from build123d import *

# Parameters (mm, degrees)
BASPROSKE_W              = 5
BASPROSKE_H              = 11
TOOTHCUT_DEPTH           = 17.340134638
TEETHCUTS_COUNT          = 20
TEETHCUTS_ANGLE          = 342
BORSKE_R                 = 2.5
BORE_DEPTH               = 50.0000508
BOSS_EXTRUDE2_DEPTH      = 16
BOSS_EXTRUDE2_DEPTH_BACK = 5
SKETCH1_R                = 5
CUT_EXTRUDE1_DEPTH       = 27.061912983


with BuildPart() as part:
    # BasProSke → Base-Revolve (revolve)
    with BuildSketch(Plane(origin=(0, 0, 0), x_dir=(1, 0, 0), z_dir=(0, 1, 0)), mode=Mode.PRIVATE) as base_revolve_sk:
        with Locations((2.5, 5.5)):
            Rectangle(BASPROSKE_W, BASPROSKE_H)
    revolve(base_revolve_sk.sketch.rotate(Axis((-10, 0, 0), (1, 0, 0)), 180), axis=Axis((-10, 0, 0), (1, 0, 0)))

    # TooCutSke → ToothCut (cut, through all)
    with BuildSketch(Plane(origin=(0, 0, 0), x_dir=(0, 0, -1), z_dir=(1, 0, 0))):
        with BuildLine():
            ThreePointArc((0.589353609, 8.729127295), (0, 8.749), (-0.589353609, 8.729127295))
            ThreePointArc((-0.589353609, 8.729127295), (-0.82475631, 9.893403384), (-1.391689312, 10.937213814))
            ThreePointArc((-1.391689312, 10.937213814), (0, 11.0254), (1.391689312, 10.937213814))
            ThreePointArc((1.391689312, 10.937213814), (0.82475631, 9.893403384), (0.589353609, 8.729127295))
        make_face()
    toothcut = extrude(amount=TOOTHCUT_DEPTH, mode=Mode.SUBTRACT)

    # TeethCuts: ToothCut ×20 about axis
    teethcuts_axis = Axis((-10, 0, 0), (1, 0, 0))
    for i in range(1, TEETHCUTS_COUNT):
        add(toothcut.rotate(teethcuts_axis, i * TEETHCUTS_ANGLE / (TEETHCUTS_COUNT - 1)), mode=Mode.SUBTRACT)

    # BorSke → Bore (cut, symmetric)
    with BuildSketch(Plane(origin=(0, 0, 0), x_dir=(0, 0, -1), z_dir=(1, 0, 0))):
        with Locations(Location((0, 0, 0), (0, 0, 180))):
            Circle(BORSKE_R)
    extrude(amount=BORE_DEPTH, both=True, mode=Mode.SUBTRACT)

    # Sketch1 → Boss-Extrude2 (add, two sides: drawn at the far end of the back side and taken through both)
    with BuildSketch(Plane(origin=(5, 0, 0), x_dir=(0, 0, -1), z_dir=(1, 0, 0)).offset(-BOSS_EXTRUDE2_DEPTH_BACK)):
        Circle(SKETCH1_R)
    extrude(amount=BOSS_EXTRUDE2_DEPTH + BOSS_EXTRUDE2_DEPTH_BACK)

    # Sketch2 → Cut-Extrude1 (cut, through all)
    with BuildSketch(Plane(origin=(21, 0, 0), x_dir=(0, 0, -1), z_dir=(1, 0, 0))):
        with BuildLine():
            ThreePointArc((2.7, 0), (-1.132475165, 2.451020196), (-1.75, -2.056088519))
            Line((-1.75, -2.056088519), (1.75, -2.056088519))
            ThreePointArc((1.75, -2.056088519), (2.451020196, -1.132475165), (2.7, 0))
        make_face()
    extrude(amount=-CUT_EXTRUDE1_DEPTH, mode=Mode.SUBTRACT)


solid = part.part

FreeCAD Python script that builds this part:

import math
import FreeCAD as App
import Part
import Sketcher
from FreeCAD import Vector
Q = App.Units.Quantity


def add_polygon(sketch, points):
    """Adds a closed chain of lines whose ends are joined by coincident constraints."""
    first, n = sketch.GeometryCount, len(points)
    for a, b in zip(points, points[1:] + points[:1]):
        sketch.addGeometry(Part.LineSegment(App.Vector(*a, 0), App.Vector(*b, 0)), False)
    for i in range(n):
        sketch.addConstraint(Sketcher.Constraint("Coincident", first + i, 2, first + (i + 1) % n, 1))

doc = App.newDocument("Part")
body = doc.addObject("PartDesign::Body", "Body")

# Sketch on XZ plane
sketch1 = body.newObject("Sketcher::SketchObject", "Sketch")
sketch1.AttachmentSupport = (doc.getObject("XZ_Plane"), [""])
sketch1.MapMode = "FlatFace"
add_polygon(sketch1, [(0, -11), (0, 0), (5, 0), (5, -11)])  # lines 0-3
sketch1.addConstraint([
    Sketcher.Constraint("Vertical", 0),
    Sketcher.Constraint("Horizontal", 1),
    Sketcher.Constraint("Vertical", 2),
    Sketcher.Constraint("Horizontal", 3),
    Sketcher.Constraint("Coincident", 0, 2, -1, 1),
    Sketcher.Constraint("DistanceX", 1, 1, 1, 2, Q("5 mm")),
    Sketcher.Constraint("DistanceY", 0, 1, 0, 2, Q("11 mm")),
])
revolution = body.newObject("PartDesign::Revolution", "Revolution")
revolution.Profile = sketch1
revolution.ReferenceAxis = (sketch1, ["H_Axis"])
revolution.Angle = 360

# Sketch on YZ plane
sketch2 = body.newObject("Sketcher::SketchObject", "Sketch001")
sketch2.AttachmentSupport = (doc.getObject("YZ_Plane"), [""])
sketch2.MapMode = "FlatFace"
sketch2.addGeometry([
    Part.ArcOfCircle(Part.Circle(Vector(0, 0, 0), Vector(0, 0, 1), 8.7), math.radians(-3.86), math.radians(3.86)),
    Part.ArcOfCircle(Part.Circle(Vector(8.5, -4.6, 0), Vector(0, 0, 1), 4), math.radians(53), math.radians(87)),
    Part.ArcOfCircle(Part.Circle(Vector(0, 0, 0), Vector(0, 0, 1), 11), math.radians(-7.25), math.radians(7.25)),
    Part.ArcOfCircle(Part.Circle(Vector(8.5, 4.6, 0), Vector(0, 0, 1), 4), math.radians(-87), math.radians(-53)),
], False)
sketch2.addConstraint([
    Sketcher.Constraint("Coincident", 0, 1, 1, 2),
    Sketcher.Constraint("Coincident", 1, 1, 2, 1),
    Sketcher.Constraint("Coincident", 2, 2, 3, 2),
    Sketcher.Constraint("Coincident", 3, 1, 0, 2),
    Sketcher.Constraint("Coincident", 0, 3, -1, 1),
    Sketcher.Constraint("Coincident", 2, 3, -1, 1),
    Sketcher.Constraint("Equal", 1, 3),
    Sketcher.Constraint("Symmetric", 1, 3, 3, 3, -1),
    Sketcher.Constraint("Radius", 1, Q("4 mm")),
    Sketcher.Constraint("Radius", 0, Q("8.749 mm")),
    Sketcher.Constraint("Radius", 2, Q("11.0254 mm")),
    Sketcher.Constraint("DistanceX", -1, 1, 1, 3, Q("8.527341 mm")),
    Sketcher.Constraint("DistanceY", 1, 3, -1, 1, Q("4.584261 mm")),
])
pocket1 = body.newObject("PartDesign::Pocket", "Pocket")
pocket1.Profile = sketch2
pocket1.Type = "ThroughAll"
pocket1.Reversed = True
doc.recompute()

polarpattern = body.newObject("PartDesign::PolarPattern", "PolarPattern")
polarpattern.Originals = [pocket1]
polarpattern.Axis = (doc.getObject("X_Axis"), [""])
polarpattern.Angle = 360
polarpattern.Occurrences = 20
body.Tip = polarpattern

# Sketch on YZ plane
sketch3 = body.newObject("Sketcher::SketchObject", "Sketch002")
sketch3.AttachmentSupport = (doc.getObject("YZ_Plane"), [""])
sketch3.MapMode = "FlatFace"
sketch3.addGeometry(Part.Circle(Vector(0, 0, 0), Vector(0, 0, 1), 2.5), False)
sketch3.addConstraint([
    Sketcher.Constraint("Coincident", 0, 3, -1, 1),
    Sketcher.Constraint("Diameter", 0, Q("5 mm")),
])
pocket2 = body.newObject("PartDesign::Pocket", "Pocket001")
pocket2.Profile = sketch3
pocket2.Length = 100.000102
pocket2.Midplane = True

# Sketch on YZ plane
sketch4 = body.newObject("Sketcher::SketchObject", "Sketch003")
sketch4.AttachmentSupport = (doc.getObject("YZ_Plane"), [""])
sketch4.MapMode = "FlatFace"
sketch4.AttachmentOffset = App.Placement(Vector(0, 0, 5), App.Rotation())
sketch4.addGeometry(Part.Circle(Vector(0, 0, 0), Vector(0, 0, 1), 5), False)
sketch4.addConstraint([
    Sketcher.Constraint("Coincident", 0, 3, -1, 1),
    Sketcher.Constraint("Diameter", 0, Q("10 mm")),
])
pad1 = body.newObject("PartDesign::Pad", "Pad")
pad1.Profile = sketch4
pad1.Type = "TwoLengths"
pad1.Length = 16
pad1.Length2 = 5

# Sketch on YZ plane
sketch5 = body.newObject("Sketcher::SketchObject", "Sketch004")
sketch5.AttachmentSupport = (doc.getObject("YZ_Plane"), [""])
sketch5.MapMode = "FlatFace"
sketch5.AttachmentOffset = App.Placement(Vector(0, 0, 21), App.Rotation())
sketch5.addGeometry([
    Part.ArcOfCircle(Part.Circle(Vector(0, 0, 0), Vector(0, 0, 1), 2.7), math.radians(-90), math.radians(140)),
    Part.LineSegment(Vector(-2.1, 1.8, 0), Vector(-2.1, -1.8, 0)),
    Part.ArcOfCircle(Part.Circle(Vector(0, 0, 0), Vector(0, 0, 1), 2.7), math.radians(-140), math.radians(-90)),
], False)
sketch5.addConstraint([
    Sketcher.Constraint("Coincident", 0, 2, 1, 1),
    Sketcher.Constraint("Coincident", 1, 2, 2, 1),
    Sketcher.Constraint("Tangent", 2, 2, 0, 1),
    Sketcher.Constraint("Vertical", 1),
    Sketcher.Constraint("Coincident", 0, 3, -1, 1),
    Sketcher.Constraint("Equal", 0, 2),
    Sketcher.Constraint("PointOnObject", 2, 2, -2),
    Sketcher.Constraint("Radius", 0, Q("2.7 mm")),
    Sketcher.Constraint("DistanceY", 1, 2, 1, 1, Q("3.5 mm")),
])
pocket3 = body.newObject("PartDesign::Pocket", "Pocket002")
pocket3.Profile = sketch5
pocket3.Type = "ThroughAll"

doc.recompute()
